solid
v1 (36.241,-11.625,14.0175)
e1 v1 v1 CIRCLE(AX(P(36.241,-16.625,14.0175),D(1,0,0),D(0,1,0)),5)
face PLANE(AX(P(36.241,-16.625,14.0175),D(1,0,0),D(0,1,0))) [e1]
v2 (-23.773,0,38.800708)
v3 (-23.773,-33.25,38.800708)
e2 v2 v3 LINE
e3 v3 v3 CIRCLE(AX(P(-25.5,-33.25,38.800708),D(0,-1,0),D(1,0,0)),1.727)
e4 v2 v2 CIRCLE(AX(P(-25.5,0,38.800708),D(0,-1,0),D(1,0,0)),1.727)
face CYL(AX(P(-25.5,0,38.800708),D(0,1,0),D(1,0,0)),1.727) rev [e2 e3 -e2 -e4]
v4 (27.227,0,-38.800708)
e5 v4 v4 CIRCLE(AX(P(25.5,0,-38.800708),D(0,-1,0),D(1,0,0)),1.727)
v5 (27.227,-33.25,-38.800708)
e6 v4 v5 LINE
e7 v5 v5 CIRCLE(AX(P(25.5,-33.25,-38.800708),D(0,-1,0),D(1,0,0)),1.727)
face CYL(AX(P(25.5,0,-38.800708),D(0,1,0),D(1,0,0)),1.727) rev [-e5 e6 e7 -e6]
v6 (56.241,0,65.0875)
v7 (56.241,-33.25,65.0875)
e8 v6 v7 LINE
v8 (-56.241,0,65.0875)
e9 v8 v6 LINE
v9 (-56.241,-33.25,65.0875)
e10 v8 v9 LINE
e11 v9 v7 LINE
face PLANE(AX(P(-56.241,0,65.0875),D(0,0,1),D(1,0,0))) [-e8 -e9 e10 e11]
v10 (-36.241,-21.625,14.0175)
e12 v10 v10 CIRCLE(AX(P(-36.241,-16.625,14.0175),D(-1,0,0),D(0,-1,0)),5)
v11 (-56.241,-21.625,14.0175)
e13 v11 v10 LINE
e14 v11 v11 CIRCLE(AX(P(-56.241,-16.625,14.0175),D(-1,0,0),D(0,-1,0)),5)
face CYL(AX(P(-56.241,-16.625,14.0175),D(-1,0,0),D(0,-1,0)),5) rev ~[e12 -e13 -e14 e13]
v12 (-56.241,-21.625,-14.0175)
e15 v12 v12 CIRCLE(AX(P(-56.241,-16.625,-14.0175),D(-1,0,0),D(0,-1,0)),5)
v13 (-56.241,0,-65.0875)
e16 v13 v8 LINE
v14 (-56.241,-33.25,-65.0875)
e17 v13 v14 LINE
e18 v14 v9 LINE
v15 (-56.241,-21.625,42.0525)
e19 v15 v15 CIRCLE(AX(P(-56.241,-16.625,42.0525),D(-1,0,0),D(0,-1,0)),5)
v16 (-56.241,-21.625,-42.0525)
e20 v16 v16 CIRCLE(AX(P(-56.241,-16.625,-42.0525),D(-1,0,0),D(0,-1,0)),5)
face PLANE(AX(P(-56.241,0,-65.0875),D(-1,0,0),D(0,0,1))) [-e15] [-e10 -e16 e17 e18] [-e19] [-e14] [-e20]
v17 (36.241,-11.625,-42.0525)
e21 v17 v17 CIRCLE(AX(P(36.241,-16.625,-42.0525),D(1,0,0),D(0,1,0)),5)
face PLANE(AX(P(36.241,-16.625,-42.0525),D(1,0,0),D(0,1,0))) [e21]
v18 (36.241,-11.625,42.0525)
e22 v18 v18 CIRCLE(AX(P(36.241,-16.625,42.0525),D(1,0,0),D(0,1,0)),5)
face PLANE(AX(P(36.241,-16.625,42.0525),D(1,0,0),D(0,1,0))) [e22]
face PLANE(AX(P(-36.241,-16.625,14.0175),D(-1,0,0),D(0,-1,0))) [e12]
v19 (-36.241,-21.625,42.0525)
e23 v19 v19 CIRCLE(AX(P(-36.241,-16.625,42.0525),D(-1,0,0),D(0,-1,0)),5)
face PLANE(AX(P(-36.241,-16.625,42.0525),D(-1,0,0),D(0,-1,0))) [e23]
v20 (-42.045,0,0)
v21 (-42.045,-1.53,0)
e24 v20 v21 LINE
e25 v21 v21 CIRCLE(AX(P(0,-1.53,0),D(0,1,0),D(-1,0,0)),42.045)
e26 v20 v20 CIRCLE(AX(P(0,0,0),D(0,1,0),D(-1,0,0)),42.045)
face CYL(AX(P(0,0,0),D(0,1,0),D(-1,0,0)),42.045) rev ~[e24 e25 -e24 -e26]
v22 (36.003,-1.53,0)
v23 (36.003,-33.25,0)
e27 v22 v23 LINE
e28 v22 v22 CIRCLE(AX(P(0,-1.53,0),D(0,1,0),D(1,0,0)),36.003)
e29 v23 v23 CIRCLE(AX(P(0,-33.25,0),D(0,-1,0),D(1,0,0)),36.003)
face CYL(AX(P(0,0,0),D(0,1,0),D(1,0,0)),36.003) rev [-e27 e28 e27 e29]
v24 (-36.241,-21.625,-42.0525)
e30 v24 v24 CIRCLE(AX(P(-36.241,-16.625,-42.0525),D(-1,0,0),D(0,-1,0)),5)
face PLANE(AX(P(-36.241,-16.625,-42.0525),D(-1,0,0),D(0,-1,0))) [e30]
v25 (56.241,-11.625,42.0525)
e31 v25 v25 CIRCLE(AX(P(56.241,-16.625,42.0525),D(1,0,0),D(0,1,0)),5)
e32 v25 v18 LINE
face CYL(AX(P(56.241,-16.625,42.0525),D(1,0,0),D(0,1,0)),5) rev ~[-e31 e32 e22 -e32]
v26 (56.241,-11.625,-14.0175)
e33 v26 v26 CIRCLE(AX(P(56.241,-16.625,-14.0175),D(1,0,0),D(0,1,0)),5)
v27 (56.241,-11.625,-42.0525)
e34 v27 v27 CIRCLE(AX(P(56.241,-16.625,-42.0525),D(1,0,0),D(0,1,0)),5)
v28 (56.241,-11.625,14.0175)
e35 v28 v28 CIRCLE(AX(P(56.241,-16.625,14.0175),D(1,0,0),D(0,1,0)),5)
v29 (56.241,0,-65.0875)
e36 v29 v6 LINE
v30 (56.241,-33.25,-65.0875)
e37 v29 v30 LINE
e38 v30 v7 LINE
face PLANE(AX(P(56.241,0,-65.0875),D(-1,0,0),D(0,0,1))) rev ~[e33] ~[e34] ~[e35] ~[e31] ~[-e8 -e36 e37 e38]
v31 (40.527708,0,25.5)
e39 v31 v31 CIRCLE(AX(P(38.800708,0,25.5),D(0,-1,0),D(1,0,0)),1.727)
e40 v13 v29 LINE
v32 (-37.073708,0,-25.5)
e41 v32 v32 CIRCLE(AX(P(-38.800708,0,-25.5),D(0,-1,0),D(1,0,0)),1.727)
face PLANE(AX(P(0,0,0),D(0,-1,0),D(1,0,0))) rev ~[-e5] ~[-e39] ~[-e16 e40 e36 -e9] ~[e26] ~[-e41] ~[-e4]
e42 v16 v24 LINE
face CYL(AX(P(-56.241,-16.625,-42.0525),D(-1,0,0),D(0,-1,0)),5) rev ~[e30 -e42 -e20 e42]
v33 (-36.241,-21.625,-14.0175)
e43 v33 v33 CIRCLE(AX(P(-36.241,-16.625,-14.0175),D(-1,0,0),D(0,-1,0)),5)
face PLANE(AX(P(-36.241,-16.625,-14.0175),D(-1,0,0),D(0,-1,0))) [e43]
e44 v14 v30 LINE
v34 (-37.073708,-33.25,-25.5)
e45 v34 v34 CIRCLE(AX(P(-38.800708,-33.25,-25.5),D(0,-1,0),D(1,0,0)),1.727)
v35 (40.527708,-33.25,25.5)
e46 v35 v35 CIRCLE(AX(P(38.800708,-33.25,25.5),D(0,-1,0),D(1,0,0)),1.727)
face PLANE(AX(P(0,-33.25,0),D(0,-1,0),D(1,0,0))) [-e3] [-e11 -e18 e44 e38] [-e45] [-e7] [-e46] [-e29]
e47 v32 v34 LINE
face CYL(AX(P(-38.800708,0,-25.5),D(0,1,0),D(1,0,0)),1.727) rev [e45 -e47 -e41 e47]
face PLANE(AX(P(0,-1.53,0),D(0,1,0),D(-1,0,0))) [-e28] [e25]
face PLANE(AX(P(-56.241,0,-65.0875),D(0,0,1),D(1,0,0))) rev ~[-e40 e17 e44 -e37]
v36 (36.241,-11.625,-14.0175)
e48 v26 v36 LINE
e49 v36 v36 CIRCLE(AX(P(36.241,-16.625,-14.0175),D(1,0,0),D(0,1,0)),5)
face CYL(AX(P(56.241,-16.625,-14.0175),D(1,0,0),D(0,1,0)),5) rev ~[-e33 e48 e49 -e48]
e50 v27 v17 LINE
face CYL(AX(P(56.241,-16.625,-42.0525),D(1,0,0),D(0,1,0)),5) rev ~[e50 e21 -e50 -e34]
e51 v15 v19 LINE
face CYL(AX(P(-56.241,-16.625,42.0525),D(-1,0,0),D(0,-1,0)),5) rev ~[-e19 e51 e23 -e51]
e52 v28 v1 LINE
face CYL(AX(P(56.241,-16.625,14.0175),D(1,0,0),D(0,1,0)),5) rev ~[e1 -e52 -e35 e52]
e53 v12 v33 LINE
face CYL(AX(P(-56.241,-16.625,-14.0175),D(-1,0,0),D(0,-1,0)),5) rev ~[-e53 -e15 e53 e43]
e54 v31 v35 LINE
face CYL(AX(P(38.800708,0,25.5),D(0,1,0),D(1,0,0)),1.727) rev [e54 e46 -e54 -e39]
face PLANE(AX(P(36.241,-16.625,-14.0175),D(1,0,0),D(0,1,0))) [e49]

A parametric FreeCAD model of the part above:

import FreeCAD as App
import Part
import Sketcher
from FreeCAD import Vector

doc = App.newDocument("Part")
body = doc.addObject("PartDesign::Body", "Body")

# Sketch on XZ plane
sketch1 = body.newObject("Sketcher::SketchObject", "Sketch")
sketch1.AttachmentSupport = (doc.getObject("XZ_Plane"), [""])
sketch1.MapMode = "FlatFace"
sketch1.addGeometry(Part.LineSegment(Vector(-56.241, 65.0875, 0), Vector(-56.241, -65.0875, 0)), False)
sketch1.addGeometry(Part.LineSegment(Vector(-56.241, -65.0875, 0), Vector(56.241, -65.0875, 0)), False)
sketch1.addGeometry(Part.LineSegment(Vector(56.241, -65.0875, 0), Vector(56.241, 65.0875, 0)), False)
sketch1.addGeometry(Part.LineSegment(Vector(56.241, 65.0875, 0), Vector(-56.241, 65.0875, 0)), False)
sketch1.addGeometry(Part.Circle(Vector(-38.800708, -25.5, 0), Vector(0, 0, 1), 1.727), False)
sketch1.addGeometry(Part.Circle(Vector(25.5, -38.800708, 0), Vector(0, 0, 1), 1.727), False)
sketch1.addGeometry(Part.Circle(Vector(-25.5, 38.800708, 0), Vector(0, 0, 1), 1.727), False)
sketch1.addGeometry(Part.Circle(Vector(0, 0, 0), Vector(0, 0, 1), 36.003), False)
sketch1.addGeometry(Part.Circle(Vector(38.800708, 25.5, 0), Vector(0, 0, 1), 1.727), False)
sketch1.addConstraint(Sketcher.Constraint("Coincident", 0, 2, 1, 1))
sketch1.addConstraint(Sketcher.Constraint("Coincident", 1, 2, 2, 1))
sketch1.addConstraint(Sketcher.Constraint("Coincident", 2, 2, 3, 1))
sketch1.addConstraint(Sketcher.Constraint("Coincident", 3, 2, 0, 1))
sketch1.addConstraint(Sketcher.Constraint("Vertical", 0))
sketch1.addConstraint(Sketcher.Constraint("Horizontal", 1))
sketch1.addConstraint(Sketcher.Constraint("Vertical", 2))
sketch1.addConstraint(Sketcher.Constraint("Horizontal", 3))
sketch1.addConstraint(Sketcher.Constraint("Coincident", 7, 3, -1, 1))
sketch1.addConstraint(Sketcher.Constraint("Equal", 4, 5))
sketch1.addConstraint(Sketcher.Constraint("Equal", 5, 6))
sketch1.addConstraint(Sketcher.Constraint("Equal", 6, 8))
sketch1.addConstraint(Sketcher.Constraint("Symmetric", 5, 3, 6, 3, -1, 1))
sketch1.addConstraint(Sketcher.Constraint("Symmetric", 4, 3, 8, 3, -1, 1))
sketch1.addConstraint(Sketcher.Constraint("Symmetric", 0, 2, 2, 2, -1, 1))
sketch1.addConstraint(Sketcher.Constraint("Diameter", 4, 3.454))
sketch1.addConstraint(Sketcher.Constraint("Diameter", 7, 72.006))
sketch1.addConstraint(Sketcher.Constraint("DistanceX", 6, 3, 5, 3, 51.0))
sketch1.addConstraint(Sketcher.Constraint("DistanceY", 4, 3, 8, 3, 51.0))
sketch1.addConstraint(Sketcher.Constraint("DistanceX", 1, 1, 1, 2, 112.482))
sketch1.addConstraint(Sketcher.Constraint("DistanceY", 0, 2, 0, 1, 130.175))
sketch1.addConstraint(Sketcher.Constraint("DistanceX", 4, 3, 5, 3, 64.300708))
sketch1.addConstraint(Sketcher.Constraint("DistanceY", 4, 3, 6, 3, 64.300708))
pad1 = body.newObject("PartDesign::Pad", "Pad")
pad1.Profile = sketch1
pad1.Length = 33.25

# Sketch on YZ plane
sketch2 = body.newObject("Sketcher::SketchObject", "Sketch001")
sketch2.AttachmentSupport = (doc.getObject("YZ_Plane"), [""])
sketch2.MapMode = "FlatFace"
sketch2.AttachmentOffset = App.Placement(Vector(0, 0, -56.241), App.Rotation())
sketch2.addGeometry(Part.Circle(Vector(-16.625, 42.0525, 0), Vector(0, 0, 1), 5), False)
sketch2.addGeometry(Part.Circle(Vector(-16.625, 14.0175, 0), Vector(0, 0, 1), 5), False)
sketch2.addGeometry(Part.Circle(Vector(-16.625, -14.0175, 0), Vector(0, 0, 1), 5), False)
sketch2.addGeometry(Part.Circle(Vector(-16.625, -42.0525, 0), Vector(0, 0, 1), 5), False)
sketch2.addConstraint(Sketcher.Constraint("Equal", 0, 1))
sketch2.addConstraint(Sketcher.Constraint("Equal", 1, 2))
sketch2.addConstraint(Sketcher.Constraint("Equal", 2, 3))
sketch2.addConstraint(Sketcher.Constraint("Symmetric", 1, 3, 2, 3, -1))
sketch2.addConstraint(Sketcher.Constraint("Symmetric", 0, 3, 3, 3, -1))
sketch2.addConstraint(Sketcher.Constraint("Vertical", 0, 3, 1, 3))
sketch2.addConstraint(Sketcher.Constraint("Diameter", 0, 10.0))
sketch2.addConstraint(Sketcher.Constraint("DistanceY", 2, 3, 0, 3, 56.07))
sketch2.addConstraint(Sketcher.Constraint("DistanceX", 0, 3, -1, 1, 16.625))
sketch2.addConstraint(Sketcher.Constraint("DistanceY", 1, 3, 0, 3, 28.035))
pocket1 = body.newObject("PartDesign::Pocket", "Pocket")
pocket1.Profile = sketch2
pocket1.Length = 20
pocket1.Reversed = True

# Sketch on YZ plane
sketch3 = body.newObject("Sketcher::SketchObject", "Sketch002")
sketch3.AttachmentSupport = (doc.getObject("YZ_Plane"), [""])
sketch3.MapMode = "FlatFace"
sketch3.AttachmentOffset = App.Placement(Vector(0, 0, 56.241), App.Rotation())
sketch3.addGeometry(Part.Circle(Vector(-16.625, 42.0525, 0), Vector(0, 0, 1), 5), False)
sketch3.addGeometry(Part.Circle(Vector(-16.625, 14.0175, 0), Vector(0, 0, 1), 5), False)
sketch3.addGeometry(Part.Circle(Vector(-16.625, -14.0175, 0), Vector(0, 0, 1), 5), False)
sketch3.addGeometry(Part.Circle(Vector(-16.625, -42.0525, 0), Vector(0, 0, 1), 5), False)
sketch3.addConstraint(Sketcher.Constraint("Equal", 0, 1))
sketch3.addConstraint(Sketcher.Constraint("Equal", 1, 2))
sketch3.addConstraint(Sketcher.Constraint("Equal", 2, 3))
sketch3.addConstraint(Sketcher.Constraint("Symmetric", 1, 3, 2, 3, -1))
sketch3.addConstraint(Sketcher.Constraint("Symmetric", 0, 3, 3, 3, -1))
sketch3.addConstraint(Sketcher.Constraint("Vertical", 0, 3, 1, 3))
sketch3.addConstraint(Sketcher.Constraint("Diameter", 0, 10.0))
sketch3.addConstraint(Sketcher.Constraint("DistanceY", 2, 3, 0, 3, 56.07))
sketch3.addConstraint(Sketcher.Constraint("DistanceX", 0, 3, -1, 1, 16.625))
sketch3.addConstraint(Sketcher.Constraint("DistanceY", 1, 3, 0, 3, 28.035))
pocket2 = body.newObject("PartDesign::Pocket", "Pocket001")
pocket2.Profile = sketch3
pocket2.Length = 20

# Sketch on XZ plane
sketch4 = body.newObject("Sketcher::SketchObject", "Sketch003")
sketch4.AttachmentSupport = (doc.getObject("XZ_Plane"), [""])
sketch4.MapMode = "FlatFace"
sketch4.addGeometry(Part.Circle(Vector(0, 0, 0), Vector(0, 0, 1), 42.045), False)
sketch4.addConstraint(Sketcher.Constraint("Coincident", 0, 3, -1, 1))
sketch4.addConstraint(Sketcher.Constraint("Diameter", 0, 84.09))
pocket3 = body.newObject("PartDesign::Pocket", "Pocket002")
pocket3.Profile = sketch4
pocket3.Length = 1.53
pocket3.Reversed = True

doc.recompute()
